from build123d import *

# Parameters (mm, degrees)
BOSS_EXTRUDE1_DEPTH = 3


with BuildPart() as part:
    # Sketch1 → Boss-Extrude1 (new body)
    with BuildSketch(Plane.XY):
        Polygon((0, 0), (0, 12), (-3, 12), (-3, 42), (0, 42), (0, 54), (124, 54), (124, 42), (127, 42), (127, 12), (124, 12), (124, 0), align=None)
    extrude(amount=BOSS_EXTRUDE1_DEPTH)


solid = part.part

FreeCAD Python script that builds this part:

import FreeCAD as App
import Part
import Sketcher

V = App.Vector
Q = App.Units.Quantity


def add_polygon(sketch, points):
    """Adds a closed chain of lines whose ends are joined by coincident constraints."""
    first, n = sketch.GeometryCount, len(points)
    for a, b in zip(points, points[1:] + points[:1]):
        sketch.addGeometry(Part.LineSegment(App.Vector(*a, 0), App.Vector(*b, 0)), False)
    for i in range(n):
        sketch.addConstraint(Sketcher.Constraint("Coincident", first + i, 2, first + (i + 1) % n, 1))

doc = App.newDocument("Part")
params = doc.addObject("Spreadsheet::Sheet", "Params")
for row, (alias, value) in enumerate([
    ("sketch1_width", "124 mm"),
    ("sketch1_width2", "3 mm"),
    ("sketch1_height", "12 mm"),
    ("sketch1_height2", "30 mm"),
    ("pad1_length", "3 mm"),
], start=1):
    params.set(f"A{row}", alias)
    params.set(f"B{row}", "=" + value)
    params.setAlias(f"B{row}", alias)

body = doc.addObject("PartDesign::Body", "Body")

# Sketch on XY plane
sketch1 = body.newObject("Sketcher::SketchObject", "Sketch")
sketch1.AttachmentSupport = (doc.getObject("XY_Plane"), [""])
sketch1.MapMode = "FlatFace"
add_polygon(sketch1, [(0, 12), (0, 0), (124, 0), (124, 12), (127, 12), (127, 42), (124, 42), (124, 54), (0, 54), (0, 42), (-3, 42), (-3, 12)])  # lines 0-11
sketch1.addConstraint([
    Sketcher.Constraint("Vertical", 0),
    Sketcher.Constraint("Horizontal", 1),
    Sketcher.Constraint("Vertical", 2),
    Sketcher.Constraint("Horizontal", 3),
    Sketcher.Constraint("Vertical", 4),
    Sketcher.Constraint("Horizontal", 5),
    Sketcher.Constraint("Vertical", 6),
    Sketcher.Constraint("Horizontal", 7),
    Sketcher.Constraint("Vertical", 8),
    Sketcher.Constraint("Horizontal", 9),
    Sketcher.Constraint("Vertical", 10),
    Sketcher.Constraint("Horizontal", 11),
    Sketcher.Constraint("Coincident", 0, 2, -1, 1),
    Sketcher.Constraint("PointOnObject", 7, 2, -2),
    Sketcher.Constraint("Horizontal", 5, 2, 8, 2),
    Sketcher.Constraint("Horizontal", 3, 2, 10, 2),
    Sketcher.Constraint("Vertical", 2, 2, 5, 2),
    Sketcher.Constraint("Equal", 5, 9),
    Sketcher.Constraint("Equal", 2, 6),
    Sketcher.Constraint("DistanceX", 1, 1, 1, 2, Q("124 mm")),
    Sketcher.Constraint("DistanceX", 3, 1, 3, 2, Q("3 mm")),
    Sketcher.Constraint("DistanceY", 0, 2, 0, 1, Q("12 mm")),
    Sketcher.Constraint("DistanceY", 4, 1, 4, 2, Q("30 mm")),
])
sketch1.setExpression("Constraints[31]", "Params.sketch1_width")
sketch1.setExpression("Constraints[32]", "Params.sketch1_width2")
sketch1.setExpression("Constraints[33]", "Params.sketch1_height")
sketch1.setExpression("Constraints[34]", "Params.sketch1_height2")
pad1 = body.newObject("PartDesign::Pad", "Pad")
pad1.Profile = sketch1
pad1.setExpression("Length", "Params.pad1_length")

doc.recompute()
